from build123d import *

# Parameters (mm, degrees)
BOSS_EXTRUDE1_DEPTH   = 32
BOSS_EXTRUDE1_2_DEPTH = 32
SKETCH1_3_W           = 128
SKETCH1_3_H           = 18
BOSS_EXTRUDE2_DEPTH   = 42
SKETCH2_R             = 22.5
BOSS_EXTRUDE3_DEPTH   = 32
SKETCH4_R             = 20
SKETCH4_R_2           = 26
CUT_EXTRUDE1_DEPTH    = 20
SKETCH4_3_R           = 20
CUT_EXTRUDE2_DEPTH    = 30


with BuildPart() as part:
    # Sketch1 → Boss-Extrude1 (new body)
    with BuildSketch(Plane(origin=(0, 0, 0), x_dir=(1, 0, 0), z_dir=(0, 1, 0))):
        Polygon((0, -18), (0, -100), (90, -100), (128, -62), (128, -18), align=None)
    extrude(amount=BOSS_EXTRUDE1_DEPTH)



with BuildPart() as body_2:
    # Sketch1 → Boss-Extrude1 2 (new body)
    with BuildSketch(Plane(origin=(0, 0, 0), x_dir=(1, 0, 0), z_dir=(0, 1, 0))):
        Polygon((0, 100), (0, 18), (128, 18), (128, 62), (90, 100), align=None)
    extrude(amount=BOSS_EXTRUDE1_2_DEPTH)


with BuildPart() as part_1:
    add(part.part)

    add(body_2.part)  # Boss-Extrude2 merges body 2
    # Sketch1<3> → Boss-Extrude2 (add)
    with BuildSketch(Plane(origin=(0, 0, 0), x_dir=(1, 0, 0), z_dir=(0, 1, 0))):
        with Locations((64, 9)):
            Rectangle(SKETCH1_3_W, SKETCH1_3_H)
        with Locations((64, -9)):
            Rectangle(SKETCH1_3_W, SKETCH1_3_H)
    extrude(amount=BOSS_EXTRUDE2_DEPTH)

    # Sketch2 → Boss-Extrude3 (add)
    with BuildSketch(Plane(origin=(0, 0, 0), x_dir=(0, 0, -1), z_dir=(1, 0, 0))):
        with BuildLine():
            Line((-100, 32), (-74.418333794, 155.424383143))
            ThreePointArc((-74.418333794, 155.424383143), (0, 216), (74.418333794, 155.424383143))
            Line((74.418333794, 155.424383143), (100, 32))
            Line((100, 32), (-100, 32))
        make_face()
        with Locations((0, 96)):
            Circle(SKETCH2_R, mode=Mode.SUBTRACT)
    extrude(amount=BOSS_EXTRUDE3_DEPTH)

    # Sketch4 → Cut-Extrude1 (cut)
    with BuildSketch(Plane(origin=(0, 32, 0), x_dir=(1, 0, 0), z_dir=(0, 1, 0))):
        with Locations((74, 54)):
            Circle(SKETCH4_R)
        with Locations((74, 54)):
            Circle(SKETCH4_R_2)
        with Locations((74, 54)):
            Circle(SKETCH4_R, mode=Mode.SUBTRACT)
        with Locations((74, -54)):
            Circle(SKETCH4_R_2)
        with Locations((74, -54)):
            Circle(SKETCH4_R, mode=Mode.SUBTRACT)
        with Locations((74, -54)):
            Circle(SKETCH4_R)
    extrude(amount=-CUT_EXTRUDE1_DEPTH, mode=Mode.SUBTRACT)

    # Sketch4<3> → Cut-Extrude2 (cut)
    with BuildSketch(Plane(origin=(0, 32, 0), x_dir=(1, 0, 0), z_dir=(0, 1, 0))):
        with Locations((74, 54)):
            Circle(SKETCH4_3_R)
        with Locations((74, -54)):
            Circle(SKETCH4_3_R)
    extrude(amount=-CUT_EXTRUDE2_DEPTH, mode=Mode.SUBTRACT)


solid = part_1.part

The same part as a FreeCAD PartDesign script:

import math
import FreeCAD as App
import Part
import Sketcher
Q = App.Units.Quantity

doc = App.newDocument("Part")
params = doc.addObject("Spreadsheet::Sheet", "Params")
for row, (alias, value) in enumerate([
    ("sketch1_width", "90 mm"),
    ("sketch1_width2", "128 mm"),
    ("sketch1_height", "82 mm"),
    ("sketch1_height2", "44 mm"),
    ("pad1_length", "32 mm"),
    ("sketch2_width", "128 mm"),
    ("sketch2_width2", "90 mm"),
    ("sketch2_height", "82 mm"),
    ("sketch2_height2", "44 mm"),
    ("pad2_length", "32 mm"),
    ("sketch3_width", "128 mm"),
    ("sketch3_height", "36 mm"),
    ("pad3_length", "42 mm"),
    ("sketch4_diameter", "45 mm"),
    ("sketch4_radius", "76 mm"),
    ("sketch4_height", "200 mm"),
    ("pad4_length", "32 mm"),
    ("sketch5_diameter", "52 mm"),
    ("sketch5_diameter2", "40 mm"),
    ("pocket1_length", "20 mm"),
    ("sketch6_diameter", "40 mm"),
    ("pocket2_length", "30 mm"),
], start=1):
    params.set(f"A{row}", alias)
    params.set(f"B{row}", "=" + value)
    params.setAlias(f"B{row}", alias)

body = doc.addObject("PartDesign::Body", "Body")

sketch1 = doc.addObject("Sketcher::SketchObject", "Sketch")
body.addObject(sketch1)
sketch1.AttachmentSupport = (doc.XZ_Plane, [""])
sketch1.MapMode = "FlatFace"
sketch1.addGeometry(Part.LineSegment(App.Vector(0, 18, 0), App.Vector(0, 100, 0)), False)
sketch1.addGeometry(Part.LineSegment(App.Vector(0, 100, 0), App.Vector(90, 100, 0)), False)
sketch1.addGeometry(Part.LineSegment(App.Vector(90, 100, 0), App.Vector(128, 62, 0)), False)
sketch1.addGeometry(Part.LineSegment(App.Vector(128, 62, 0), App.Vector(128, 18, 0)), False)
sketch1.addGeometry(Part.LineSegment(App.Vector(128, 18, 0), App.Vector(0, 18, 0)), False)
sketch1.addConstraint(Sketcher.Constraint("Coincident", 0, 2, 1, 1))
sketch1.addConstraint(Sketcher.Constraint("Coincident", 1, 2, 2, 1))
sketch1.addConstraint(Sketcher.Constraint("Coincident", 2, 2, 3, 1))
sketch1.addConstraint(Sketcher.Constraint("Coincident", 3, 2, 4, 1))
sketch1.addConstraint(Sketcher.Constraint("Coincident", 4, 2, 0, 1))
sketch1.addConstraint(Sketcher.Constraint("Vertical", 0))
sketch1.addConstraint(Sketcher.Constraint("Horizontal", 1))
sketch1.addConstraint(Sketcher.Constraint("Vertical", 3))
sketch1.addConstraint(Sketcher.Constraint("Horizontal", 4))
sketch1.addConstraint(Sketcher.Constraint("PointOnObject", 0, 2, -2))
sketch1.addConstraint(Sketcher.Constraint("DistanceX", 1, 1, 1, 2, Q("90 mm")))
sketch1.addConstraint(Sketcher.Constraint("DistanceX", 4, 2, 4, 1, Q("128 mm")))
sketch1.addConstraint(Sketcher.Constraint("DistanceY", 0, 1, 0, 2, Q("82 mm")))
sketch1.addConstraint(Sketcher.Constraint("DistanceY", 3, 2, 3, 1, Q("44 mm")))
sketch1.addConstraint(Sketcher.Constraint("DistanceY", -1, 1, 0, 2, Q("100 mm")))
sketch1.setExpression("Constraints[10]", "Params.sketch1_width")
sketch1.setExpression("Constraints[11]", "Params.sketch1_width2")
sketch1.setExpression("Constraints[12]", "Params.sketch1_height")
sketch1.setExpression("Constraints[13]", "Params.sketch1_height2")
pad1 = doc.addObject("PartDesign::Pad", "Pad")
body.addObject(pad1)
pad1.Profile = sketch1
pad1.setExpression("Length", "Params.pad1_length")
pad1.Reversed = True
body2 = doc.addObject("PartDesign::Body", "Body001")

sketch2 = doc.addObject("Sketcher::SketchObject", "Sketch001")
body2.addObject(sketch2)
sketch2.AttachmentSupport = (doc.getObject("XZ_Plane001"), [""])
sketch2.MapMode = "FlatFace"
sketch2.addGeometry(Part.LineSegment(App.Vector(0, -100, 0), App.Vector(0, -18, 0)), False)
sketch2.addGeometry(Part.LineSegment(App.Vector(0, -18, 0), App.Vector(128, -18, 0)), False)
sketch2.addGeometry(Part.LineSegment(App.Vector(128, -18, 0), App.Vector(128, -62, 0)), False)
sketch2.addGeometry(Part.LineSegment(App.Vector(128, -62, 0), App.Vector(90, -100, 0)), False)
sketch2.addGeometry(Part.LineSegment(App.Vector(90, -100, 0), App.Vector(0, -100, 0)), False)
sketch2.addConstraint(Sketcher.Constraint("Coincident", 0, 2, 1, 1))
sketch2.addConstraint(Sketcher.Constraint("Coincident", 1, 2, 2, 1))
sketch2.addConstraint(Sketcher.Constraint("Coincident", 2, 2, 3, 1))
sketch2.addConstraint(Sketcher.Constraint("Coincident", 3, 2, 4, 1))
sketch2.addConstraint(Sketcher.Constraint("Coincident", 4, 2, 0, 1))
sketch2.addConstraint(Sketcher.Constraint("Vertical", 0))
sketch2.addConstraint(Sketcher.Constraint("Horizontal", 1))
sketch2.addConstraint(Sketcher.Constraint("Vertical", 2))
sketch2.addConstraint(Sketcher.Constraint("Horizontal", 4))
sketch2.addConstraint(Sketcher.Constraint("PointOnObject", 0, 2, -2))
sketch2.addConstraint(Sketcher.Constraint("DistanceX", 1, 1, 1, 2, Q("128 mm")))
sketch2.addConstraint(Sketcher.Constraint("DistanceX", 4, 2, 4, 1, Q("90 mm")))
sketch2.addConstraint(Sketcher.Constraint("DistanceY", 0, 1, 0, 2, Q("82 mm")))
sketch2.addConstraint(Sketcher.Constraint("DistanceY", 2, 2, 2, 1, Q("44 mm")))
sketch2.addConstraint(Sketcher.Constraint("DistanceY", 0, 2, -1, 1, Q("18 mm")))
sketch2.setExpression("Constraints[10]", "Params.sketch2_width")
sketch2.setExpression("Constraints[11]", "Params.sketch2_width2")
sketch2.setExpression("Constraints[12]", "Params.sketch2_height")
sketch2.setExpression("Constraints[13]", "Params.sketch2_height2")
pad2 = doc.addObject("PartDesign::Pad", "Pad001")
body2.addObject(pad2)
pad2.Profile = sketch2
pad2.setExpression("Length", "Params.pad2_length")
pad2.Reversed = True
body.AllowCompound = True
doc.recompute()

boolean = doc.addObject("PartDesign::Boolean", "Boolean")
body.addObject(boolean)
boolean.Type = "Fuse"
boolean.addObjects([body2])

sketch3 = doc.addObject("Sketcher::SketchObject", "Sketch002")
body.addObject(sketch3)
sketch3.AttachmentSupport = (doc.XZ_Plane, [""])
sketch3.MapMode = "FlatFace"
sketch3.addGeometry(Part.LineSegment(App.Vector(0, -18, 0), App.Vector(0, 18, 0)), False)
sketch3.addGeometry(Part.LineSegment(App.Vector(0, 18, 0), App.Vector(128, 18, 0)), False)
sketch3.addGeometry(Part.LineSegment(App.Vector(128, 18, 0), App.Vector(128, -18, 0)), False)
sketch3.addGeometry(Part.LineSegment(App.Vector(128, -18, 0), App.Vector(0, -18, 0)), False)
sketch3.addConstraint(Sketcher.Constraint("Coincident", 0, 2, 1, 1))
sketch3.addConstraint(Sketcher.Constraint("Coincident", 1, 2, 2, 1))
sketch3.addConstraint(Sketcher.Constraint("Coincident", 2, 2, 3, 1))
sketch3.addConstraint(Sketcher.Constraint("Coincident", 3, 2, 0, 1))
sketch3.addConstraint(Sketcher.Constraint("Vertical", 0))
sketch3.addConstraint(Sketcher.Constraint("Horizontal", 1))
sketch3.addConstraint(Sketcher.Constraint("Vertical", 2))
sketch3.addConstraint(Sketcher.Constraint("Horizontal", 3))
sketch3.addConstraint(Sketcher.Constraint("Symmetric", 0, 2, 3, 2, -1, 1))
sketch3.addConstraint(Sketcher.Constraint("DistanceX", 1, 1, 1, 2, Q("128 mm")))
sketch3.addConstraint(Sketcher.Constraint("DistanceY", 0, 1, 0, 2, Q("36 mm")))
sketch3.setExpression("Constraints[9]", "Params.sketch3_width")
sketch3.setExpression("Constraints[10]", "Params.sketch3_height")
pad3 = doc.addObject("PartDesign::Pad", "Pad002")
body.addObject(pad3)
pad3.Profile = sketch3
pad3.setExpression("Length", "Params.pad3_length")
pad3.Reversed = True

sketch4 = doc.addObject("Sketcher::SketchObject", "Sketch003")
body.addObject(sketch4)
sketch4.AttachmentSupport = (doc.YZ_Plane, [""])
sketch4.MapMode = "FlatFace"
sketch4.addGeometry(Part.LineSegment(App.Vector(155.424383, 74.418334, 0), App.Vector(32, 100, 0)), False)
sketch4.addGeometry(Part.LineSegment(App.Vector(32, 100, 0), App.Vector(32, -100, 0)), False)
sketch4.addGeometry(Part.LineSegment(App.Vector(32, -100, 0), App.Vector(155.424383, -74.418334, 0)), False)
sketch4.addGeometry(Part.ArcOfCircle(Part.Circle(App.Vector(140, 0, 0), App.Vector(0, 0, 1), 76), math.radians(-78.290339), math.radians(78.290339)), False)
sketch4.addGeometry(Part.Circle(App.Vector(96, 0, 0), App.Vector(0, 0, 1), 22.5), False)
sketch4.addConstraint(Sketcher.Constraint("Coincident", 0, 2, 1, 1))
sketch4.addConstraint(Sketcher.Constraint("Coincident", 1, 2, 2, 1))
sketch4.addConstraint(Sketcher.Constraint("Tangent", 2, 2, 3, 1))
sketch4.addConstraint(Sketcher.Constraint("Tangent", 3, 2, 0, 1))
sketch4.addConstraint(Sketcher.Constraint("Vertical", 1))
sketch4.addConstraint(Sketcher.Constraint("Symmetric", 2, 2, 3, 2, -1))
sketch4.addConstraint(Sketcher.Constraint("PointOnObject", 4, 3, -1))
sketch4.addConstraint(Sketcher.Constraint("Diameter", 4, Q("45 mm")))
sketch4.addConstraint(Sketcher.Constraint("Radius", 3, Q("76 mm")))
sketch4.addConstraint(Sketcher.Constraint("DistanceY", 1, 2, 1, 1, Q("200 mm")))
sketch4.addConstraint(Sketcher.Constraint("DistanceX", -1, 1, 3, 3, Q("140 mm")))
sketch4.addConstraint(Sketcher.Constraint("DistanceX", -1, 1, 4, 3, Q("96 mm")))
sketch4.addConstraint(Sketcher.Constraint("DistanceX", -1, 1, 0, 2, Q("32 mm")))
sketch4.setExpression("Constraints[7]", "Params.sketch4_diameter")
sketch4.setExpression("Constraints[8]", "Params.sketch4_radius")
sketch4.setExpression("Constraints[9]", "Params.sketch4_height")
pad4 = doc.addObject("PartDesign::Pad", "Pad003")
body.addObject(pad4)
pad4.Profile = sketch4
pad4.setExpression("Length", "Params.pad4_length")

sketch5 = doc.addObject("Sketcher::SketchObject", "Sketch004")
body.addObject(sketch5)
sketch5.AttachmentSupport = (doc.XZ_Plane, [""])
sketch5.MapMode = "FlatFace"
sketch5.AttachmentOffset = App.Placement(App.Vector(0, 0, -32), App.Rotation())
sketch5.addGeometry(Part.Circle(App.Vector(74, -54, 0), App.Vector(0, 0, 1), 26), False)
sketch5.addGeometry(Part.Circle(App.Vector(74, -54, 0), App.Vector(0, 0, 1), 20), False)
sketch5.addGeometry(Part.Circle(App.Vector(74, 54, 0), App.Vector(0, 0, 1), 26), False)
sketch5.addConstraint(Sketcher.Constraint("Coincident", 1, 3, 0, 3))
sketch5.addConstraint(Sketcher.Constraint("Equal", 0, 2))
sketch5.addConstraint(Sketcher.Constraint("Symmetric", 0, 3, 2, 3, -1))
sketch5.addConstraint(Sketcher.Constraint("Diameter", 0, Q("52 mm")))
sketch5.addConstraint(Sketcher.Constraint("Diameter", 1, Q("40 mm")))
sketch5.addConstraint(Sketcher.Constraint("DistanceX", -1, 1, 0, 3, Q("74 mm")))
sketch5.addConstraint(Sketcher.Constraint("DistanceY", 0, 3, -1, 1, Q("54 mm")))
sketch5.setExpression("Constraints[3]", "Params.sketch5_diameter")
sketch5.setExpression("Constraints[4]", "Params.sketch5_diameter2")
pocket1 = doc.addObject("PartDesign::Pocket", "Pocket")
body.addObject(pocket1)
pocket1.Profile = sketch5
pocket1.setExpression("Length", "Params.pocket1_length")
pocket1.Reversed = True

sketch6 = doc.addObject("Sketcher::SketchObject", "Sketch005")
body.addObject(sketch6)
sketch6.AttachmentSupport = (doc.XZ_Plane, [""])
sketch6.MapMode = "FlatFace"
sketch6.AttachmentOffset = App.Placement(App.Vector(0, 0, -32), App.Rotation())
sketch6.addGeometry(Part.Circle(App.Vector(74, -54, 0), App.Vector(0, 0, 1), 20), False)
sketch6.addGeometry(Part.Circle(App.Vector(74, 54, 0), App.Vector(0, 0, 1), 20), False)
sketch6.addConstraint(Sketcher.Constraint("Equal", 0, 1))
sketch6.addConstraint(Sketcher.Constraint("Symmetric", 0, 3, 1, 3, -1))
sketch6.addConstraint(Sketcher.Constraint("Diameter", 0, Q("40 mm")))
sketch6.addConstraint(Sketcher.Constraint("DistanceX", -1, 1, 0, 3, Q("74 mm")))
sketch6.addConstraint(Sketcher.Constraint("DistanceY", 0, 3, -1, 1, Q("54 mm")))
sketch6.setExpression("Constraints[2]", "Params.sketch6_diameter")
pocket2 = doc.addObject("PartDesign::Pocket", "Pocket001")
body.addObject(pocket2)
pocket2.Profile = sketch6
pocket2.setExpression("Length", "Params.pocket2_length")
pocket2.Reversed = True

doc.recompute()
